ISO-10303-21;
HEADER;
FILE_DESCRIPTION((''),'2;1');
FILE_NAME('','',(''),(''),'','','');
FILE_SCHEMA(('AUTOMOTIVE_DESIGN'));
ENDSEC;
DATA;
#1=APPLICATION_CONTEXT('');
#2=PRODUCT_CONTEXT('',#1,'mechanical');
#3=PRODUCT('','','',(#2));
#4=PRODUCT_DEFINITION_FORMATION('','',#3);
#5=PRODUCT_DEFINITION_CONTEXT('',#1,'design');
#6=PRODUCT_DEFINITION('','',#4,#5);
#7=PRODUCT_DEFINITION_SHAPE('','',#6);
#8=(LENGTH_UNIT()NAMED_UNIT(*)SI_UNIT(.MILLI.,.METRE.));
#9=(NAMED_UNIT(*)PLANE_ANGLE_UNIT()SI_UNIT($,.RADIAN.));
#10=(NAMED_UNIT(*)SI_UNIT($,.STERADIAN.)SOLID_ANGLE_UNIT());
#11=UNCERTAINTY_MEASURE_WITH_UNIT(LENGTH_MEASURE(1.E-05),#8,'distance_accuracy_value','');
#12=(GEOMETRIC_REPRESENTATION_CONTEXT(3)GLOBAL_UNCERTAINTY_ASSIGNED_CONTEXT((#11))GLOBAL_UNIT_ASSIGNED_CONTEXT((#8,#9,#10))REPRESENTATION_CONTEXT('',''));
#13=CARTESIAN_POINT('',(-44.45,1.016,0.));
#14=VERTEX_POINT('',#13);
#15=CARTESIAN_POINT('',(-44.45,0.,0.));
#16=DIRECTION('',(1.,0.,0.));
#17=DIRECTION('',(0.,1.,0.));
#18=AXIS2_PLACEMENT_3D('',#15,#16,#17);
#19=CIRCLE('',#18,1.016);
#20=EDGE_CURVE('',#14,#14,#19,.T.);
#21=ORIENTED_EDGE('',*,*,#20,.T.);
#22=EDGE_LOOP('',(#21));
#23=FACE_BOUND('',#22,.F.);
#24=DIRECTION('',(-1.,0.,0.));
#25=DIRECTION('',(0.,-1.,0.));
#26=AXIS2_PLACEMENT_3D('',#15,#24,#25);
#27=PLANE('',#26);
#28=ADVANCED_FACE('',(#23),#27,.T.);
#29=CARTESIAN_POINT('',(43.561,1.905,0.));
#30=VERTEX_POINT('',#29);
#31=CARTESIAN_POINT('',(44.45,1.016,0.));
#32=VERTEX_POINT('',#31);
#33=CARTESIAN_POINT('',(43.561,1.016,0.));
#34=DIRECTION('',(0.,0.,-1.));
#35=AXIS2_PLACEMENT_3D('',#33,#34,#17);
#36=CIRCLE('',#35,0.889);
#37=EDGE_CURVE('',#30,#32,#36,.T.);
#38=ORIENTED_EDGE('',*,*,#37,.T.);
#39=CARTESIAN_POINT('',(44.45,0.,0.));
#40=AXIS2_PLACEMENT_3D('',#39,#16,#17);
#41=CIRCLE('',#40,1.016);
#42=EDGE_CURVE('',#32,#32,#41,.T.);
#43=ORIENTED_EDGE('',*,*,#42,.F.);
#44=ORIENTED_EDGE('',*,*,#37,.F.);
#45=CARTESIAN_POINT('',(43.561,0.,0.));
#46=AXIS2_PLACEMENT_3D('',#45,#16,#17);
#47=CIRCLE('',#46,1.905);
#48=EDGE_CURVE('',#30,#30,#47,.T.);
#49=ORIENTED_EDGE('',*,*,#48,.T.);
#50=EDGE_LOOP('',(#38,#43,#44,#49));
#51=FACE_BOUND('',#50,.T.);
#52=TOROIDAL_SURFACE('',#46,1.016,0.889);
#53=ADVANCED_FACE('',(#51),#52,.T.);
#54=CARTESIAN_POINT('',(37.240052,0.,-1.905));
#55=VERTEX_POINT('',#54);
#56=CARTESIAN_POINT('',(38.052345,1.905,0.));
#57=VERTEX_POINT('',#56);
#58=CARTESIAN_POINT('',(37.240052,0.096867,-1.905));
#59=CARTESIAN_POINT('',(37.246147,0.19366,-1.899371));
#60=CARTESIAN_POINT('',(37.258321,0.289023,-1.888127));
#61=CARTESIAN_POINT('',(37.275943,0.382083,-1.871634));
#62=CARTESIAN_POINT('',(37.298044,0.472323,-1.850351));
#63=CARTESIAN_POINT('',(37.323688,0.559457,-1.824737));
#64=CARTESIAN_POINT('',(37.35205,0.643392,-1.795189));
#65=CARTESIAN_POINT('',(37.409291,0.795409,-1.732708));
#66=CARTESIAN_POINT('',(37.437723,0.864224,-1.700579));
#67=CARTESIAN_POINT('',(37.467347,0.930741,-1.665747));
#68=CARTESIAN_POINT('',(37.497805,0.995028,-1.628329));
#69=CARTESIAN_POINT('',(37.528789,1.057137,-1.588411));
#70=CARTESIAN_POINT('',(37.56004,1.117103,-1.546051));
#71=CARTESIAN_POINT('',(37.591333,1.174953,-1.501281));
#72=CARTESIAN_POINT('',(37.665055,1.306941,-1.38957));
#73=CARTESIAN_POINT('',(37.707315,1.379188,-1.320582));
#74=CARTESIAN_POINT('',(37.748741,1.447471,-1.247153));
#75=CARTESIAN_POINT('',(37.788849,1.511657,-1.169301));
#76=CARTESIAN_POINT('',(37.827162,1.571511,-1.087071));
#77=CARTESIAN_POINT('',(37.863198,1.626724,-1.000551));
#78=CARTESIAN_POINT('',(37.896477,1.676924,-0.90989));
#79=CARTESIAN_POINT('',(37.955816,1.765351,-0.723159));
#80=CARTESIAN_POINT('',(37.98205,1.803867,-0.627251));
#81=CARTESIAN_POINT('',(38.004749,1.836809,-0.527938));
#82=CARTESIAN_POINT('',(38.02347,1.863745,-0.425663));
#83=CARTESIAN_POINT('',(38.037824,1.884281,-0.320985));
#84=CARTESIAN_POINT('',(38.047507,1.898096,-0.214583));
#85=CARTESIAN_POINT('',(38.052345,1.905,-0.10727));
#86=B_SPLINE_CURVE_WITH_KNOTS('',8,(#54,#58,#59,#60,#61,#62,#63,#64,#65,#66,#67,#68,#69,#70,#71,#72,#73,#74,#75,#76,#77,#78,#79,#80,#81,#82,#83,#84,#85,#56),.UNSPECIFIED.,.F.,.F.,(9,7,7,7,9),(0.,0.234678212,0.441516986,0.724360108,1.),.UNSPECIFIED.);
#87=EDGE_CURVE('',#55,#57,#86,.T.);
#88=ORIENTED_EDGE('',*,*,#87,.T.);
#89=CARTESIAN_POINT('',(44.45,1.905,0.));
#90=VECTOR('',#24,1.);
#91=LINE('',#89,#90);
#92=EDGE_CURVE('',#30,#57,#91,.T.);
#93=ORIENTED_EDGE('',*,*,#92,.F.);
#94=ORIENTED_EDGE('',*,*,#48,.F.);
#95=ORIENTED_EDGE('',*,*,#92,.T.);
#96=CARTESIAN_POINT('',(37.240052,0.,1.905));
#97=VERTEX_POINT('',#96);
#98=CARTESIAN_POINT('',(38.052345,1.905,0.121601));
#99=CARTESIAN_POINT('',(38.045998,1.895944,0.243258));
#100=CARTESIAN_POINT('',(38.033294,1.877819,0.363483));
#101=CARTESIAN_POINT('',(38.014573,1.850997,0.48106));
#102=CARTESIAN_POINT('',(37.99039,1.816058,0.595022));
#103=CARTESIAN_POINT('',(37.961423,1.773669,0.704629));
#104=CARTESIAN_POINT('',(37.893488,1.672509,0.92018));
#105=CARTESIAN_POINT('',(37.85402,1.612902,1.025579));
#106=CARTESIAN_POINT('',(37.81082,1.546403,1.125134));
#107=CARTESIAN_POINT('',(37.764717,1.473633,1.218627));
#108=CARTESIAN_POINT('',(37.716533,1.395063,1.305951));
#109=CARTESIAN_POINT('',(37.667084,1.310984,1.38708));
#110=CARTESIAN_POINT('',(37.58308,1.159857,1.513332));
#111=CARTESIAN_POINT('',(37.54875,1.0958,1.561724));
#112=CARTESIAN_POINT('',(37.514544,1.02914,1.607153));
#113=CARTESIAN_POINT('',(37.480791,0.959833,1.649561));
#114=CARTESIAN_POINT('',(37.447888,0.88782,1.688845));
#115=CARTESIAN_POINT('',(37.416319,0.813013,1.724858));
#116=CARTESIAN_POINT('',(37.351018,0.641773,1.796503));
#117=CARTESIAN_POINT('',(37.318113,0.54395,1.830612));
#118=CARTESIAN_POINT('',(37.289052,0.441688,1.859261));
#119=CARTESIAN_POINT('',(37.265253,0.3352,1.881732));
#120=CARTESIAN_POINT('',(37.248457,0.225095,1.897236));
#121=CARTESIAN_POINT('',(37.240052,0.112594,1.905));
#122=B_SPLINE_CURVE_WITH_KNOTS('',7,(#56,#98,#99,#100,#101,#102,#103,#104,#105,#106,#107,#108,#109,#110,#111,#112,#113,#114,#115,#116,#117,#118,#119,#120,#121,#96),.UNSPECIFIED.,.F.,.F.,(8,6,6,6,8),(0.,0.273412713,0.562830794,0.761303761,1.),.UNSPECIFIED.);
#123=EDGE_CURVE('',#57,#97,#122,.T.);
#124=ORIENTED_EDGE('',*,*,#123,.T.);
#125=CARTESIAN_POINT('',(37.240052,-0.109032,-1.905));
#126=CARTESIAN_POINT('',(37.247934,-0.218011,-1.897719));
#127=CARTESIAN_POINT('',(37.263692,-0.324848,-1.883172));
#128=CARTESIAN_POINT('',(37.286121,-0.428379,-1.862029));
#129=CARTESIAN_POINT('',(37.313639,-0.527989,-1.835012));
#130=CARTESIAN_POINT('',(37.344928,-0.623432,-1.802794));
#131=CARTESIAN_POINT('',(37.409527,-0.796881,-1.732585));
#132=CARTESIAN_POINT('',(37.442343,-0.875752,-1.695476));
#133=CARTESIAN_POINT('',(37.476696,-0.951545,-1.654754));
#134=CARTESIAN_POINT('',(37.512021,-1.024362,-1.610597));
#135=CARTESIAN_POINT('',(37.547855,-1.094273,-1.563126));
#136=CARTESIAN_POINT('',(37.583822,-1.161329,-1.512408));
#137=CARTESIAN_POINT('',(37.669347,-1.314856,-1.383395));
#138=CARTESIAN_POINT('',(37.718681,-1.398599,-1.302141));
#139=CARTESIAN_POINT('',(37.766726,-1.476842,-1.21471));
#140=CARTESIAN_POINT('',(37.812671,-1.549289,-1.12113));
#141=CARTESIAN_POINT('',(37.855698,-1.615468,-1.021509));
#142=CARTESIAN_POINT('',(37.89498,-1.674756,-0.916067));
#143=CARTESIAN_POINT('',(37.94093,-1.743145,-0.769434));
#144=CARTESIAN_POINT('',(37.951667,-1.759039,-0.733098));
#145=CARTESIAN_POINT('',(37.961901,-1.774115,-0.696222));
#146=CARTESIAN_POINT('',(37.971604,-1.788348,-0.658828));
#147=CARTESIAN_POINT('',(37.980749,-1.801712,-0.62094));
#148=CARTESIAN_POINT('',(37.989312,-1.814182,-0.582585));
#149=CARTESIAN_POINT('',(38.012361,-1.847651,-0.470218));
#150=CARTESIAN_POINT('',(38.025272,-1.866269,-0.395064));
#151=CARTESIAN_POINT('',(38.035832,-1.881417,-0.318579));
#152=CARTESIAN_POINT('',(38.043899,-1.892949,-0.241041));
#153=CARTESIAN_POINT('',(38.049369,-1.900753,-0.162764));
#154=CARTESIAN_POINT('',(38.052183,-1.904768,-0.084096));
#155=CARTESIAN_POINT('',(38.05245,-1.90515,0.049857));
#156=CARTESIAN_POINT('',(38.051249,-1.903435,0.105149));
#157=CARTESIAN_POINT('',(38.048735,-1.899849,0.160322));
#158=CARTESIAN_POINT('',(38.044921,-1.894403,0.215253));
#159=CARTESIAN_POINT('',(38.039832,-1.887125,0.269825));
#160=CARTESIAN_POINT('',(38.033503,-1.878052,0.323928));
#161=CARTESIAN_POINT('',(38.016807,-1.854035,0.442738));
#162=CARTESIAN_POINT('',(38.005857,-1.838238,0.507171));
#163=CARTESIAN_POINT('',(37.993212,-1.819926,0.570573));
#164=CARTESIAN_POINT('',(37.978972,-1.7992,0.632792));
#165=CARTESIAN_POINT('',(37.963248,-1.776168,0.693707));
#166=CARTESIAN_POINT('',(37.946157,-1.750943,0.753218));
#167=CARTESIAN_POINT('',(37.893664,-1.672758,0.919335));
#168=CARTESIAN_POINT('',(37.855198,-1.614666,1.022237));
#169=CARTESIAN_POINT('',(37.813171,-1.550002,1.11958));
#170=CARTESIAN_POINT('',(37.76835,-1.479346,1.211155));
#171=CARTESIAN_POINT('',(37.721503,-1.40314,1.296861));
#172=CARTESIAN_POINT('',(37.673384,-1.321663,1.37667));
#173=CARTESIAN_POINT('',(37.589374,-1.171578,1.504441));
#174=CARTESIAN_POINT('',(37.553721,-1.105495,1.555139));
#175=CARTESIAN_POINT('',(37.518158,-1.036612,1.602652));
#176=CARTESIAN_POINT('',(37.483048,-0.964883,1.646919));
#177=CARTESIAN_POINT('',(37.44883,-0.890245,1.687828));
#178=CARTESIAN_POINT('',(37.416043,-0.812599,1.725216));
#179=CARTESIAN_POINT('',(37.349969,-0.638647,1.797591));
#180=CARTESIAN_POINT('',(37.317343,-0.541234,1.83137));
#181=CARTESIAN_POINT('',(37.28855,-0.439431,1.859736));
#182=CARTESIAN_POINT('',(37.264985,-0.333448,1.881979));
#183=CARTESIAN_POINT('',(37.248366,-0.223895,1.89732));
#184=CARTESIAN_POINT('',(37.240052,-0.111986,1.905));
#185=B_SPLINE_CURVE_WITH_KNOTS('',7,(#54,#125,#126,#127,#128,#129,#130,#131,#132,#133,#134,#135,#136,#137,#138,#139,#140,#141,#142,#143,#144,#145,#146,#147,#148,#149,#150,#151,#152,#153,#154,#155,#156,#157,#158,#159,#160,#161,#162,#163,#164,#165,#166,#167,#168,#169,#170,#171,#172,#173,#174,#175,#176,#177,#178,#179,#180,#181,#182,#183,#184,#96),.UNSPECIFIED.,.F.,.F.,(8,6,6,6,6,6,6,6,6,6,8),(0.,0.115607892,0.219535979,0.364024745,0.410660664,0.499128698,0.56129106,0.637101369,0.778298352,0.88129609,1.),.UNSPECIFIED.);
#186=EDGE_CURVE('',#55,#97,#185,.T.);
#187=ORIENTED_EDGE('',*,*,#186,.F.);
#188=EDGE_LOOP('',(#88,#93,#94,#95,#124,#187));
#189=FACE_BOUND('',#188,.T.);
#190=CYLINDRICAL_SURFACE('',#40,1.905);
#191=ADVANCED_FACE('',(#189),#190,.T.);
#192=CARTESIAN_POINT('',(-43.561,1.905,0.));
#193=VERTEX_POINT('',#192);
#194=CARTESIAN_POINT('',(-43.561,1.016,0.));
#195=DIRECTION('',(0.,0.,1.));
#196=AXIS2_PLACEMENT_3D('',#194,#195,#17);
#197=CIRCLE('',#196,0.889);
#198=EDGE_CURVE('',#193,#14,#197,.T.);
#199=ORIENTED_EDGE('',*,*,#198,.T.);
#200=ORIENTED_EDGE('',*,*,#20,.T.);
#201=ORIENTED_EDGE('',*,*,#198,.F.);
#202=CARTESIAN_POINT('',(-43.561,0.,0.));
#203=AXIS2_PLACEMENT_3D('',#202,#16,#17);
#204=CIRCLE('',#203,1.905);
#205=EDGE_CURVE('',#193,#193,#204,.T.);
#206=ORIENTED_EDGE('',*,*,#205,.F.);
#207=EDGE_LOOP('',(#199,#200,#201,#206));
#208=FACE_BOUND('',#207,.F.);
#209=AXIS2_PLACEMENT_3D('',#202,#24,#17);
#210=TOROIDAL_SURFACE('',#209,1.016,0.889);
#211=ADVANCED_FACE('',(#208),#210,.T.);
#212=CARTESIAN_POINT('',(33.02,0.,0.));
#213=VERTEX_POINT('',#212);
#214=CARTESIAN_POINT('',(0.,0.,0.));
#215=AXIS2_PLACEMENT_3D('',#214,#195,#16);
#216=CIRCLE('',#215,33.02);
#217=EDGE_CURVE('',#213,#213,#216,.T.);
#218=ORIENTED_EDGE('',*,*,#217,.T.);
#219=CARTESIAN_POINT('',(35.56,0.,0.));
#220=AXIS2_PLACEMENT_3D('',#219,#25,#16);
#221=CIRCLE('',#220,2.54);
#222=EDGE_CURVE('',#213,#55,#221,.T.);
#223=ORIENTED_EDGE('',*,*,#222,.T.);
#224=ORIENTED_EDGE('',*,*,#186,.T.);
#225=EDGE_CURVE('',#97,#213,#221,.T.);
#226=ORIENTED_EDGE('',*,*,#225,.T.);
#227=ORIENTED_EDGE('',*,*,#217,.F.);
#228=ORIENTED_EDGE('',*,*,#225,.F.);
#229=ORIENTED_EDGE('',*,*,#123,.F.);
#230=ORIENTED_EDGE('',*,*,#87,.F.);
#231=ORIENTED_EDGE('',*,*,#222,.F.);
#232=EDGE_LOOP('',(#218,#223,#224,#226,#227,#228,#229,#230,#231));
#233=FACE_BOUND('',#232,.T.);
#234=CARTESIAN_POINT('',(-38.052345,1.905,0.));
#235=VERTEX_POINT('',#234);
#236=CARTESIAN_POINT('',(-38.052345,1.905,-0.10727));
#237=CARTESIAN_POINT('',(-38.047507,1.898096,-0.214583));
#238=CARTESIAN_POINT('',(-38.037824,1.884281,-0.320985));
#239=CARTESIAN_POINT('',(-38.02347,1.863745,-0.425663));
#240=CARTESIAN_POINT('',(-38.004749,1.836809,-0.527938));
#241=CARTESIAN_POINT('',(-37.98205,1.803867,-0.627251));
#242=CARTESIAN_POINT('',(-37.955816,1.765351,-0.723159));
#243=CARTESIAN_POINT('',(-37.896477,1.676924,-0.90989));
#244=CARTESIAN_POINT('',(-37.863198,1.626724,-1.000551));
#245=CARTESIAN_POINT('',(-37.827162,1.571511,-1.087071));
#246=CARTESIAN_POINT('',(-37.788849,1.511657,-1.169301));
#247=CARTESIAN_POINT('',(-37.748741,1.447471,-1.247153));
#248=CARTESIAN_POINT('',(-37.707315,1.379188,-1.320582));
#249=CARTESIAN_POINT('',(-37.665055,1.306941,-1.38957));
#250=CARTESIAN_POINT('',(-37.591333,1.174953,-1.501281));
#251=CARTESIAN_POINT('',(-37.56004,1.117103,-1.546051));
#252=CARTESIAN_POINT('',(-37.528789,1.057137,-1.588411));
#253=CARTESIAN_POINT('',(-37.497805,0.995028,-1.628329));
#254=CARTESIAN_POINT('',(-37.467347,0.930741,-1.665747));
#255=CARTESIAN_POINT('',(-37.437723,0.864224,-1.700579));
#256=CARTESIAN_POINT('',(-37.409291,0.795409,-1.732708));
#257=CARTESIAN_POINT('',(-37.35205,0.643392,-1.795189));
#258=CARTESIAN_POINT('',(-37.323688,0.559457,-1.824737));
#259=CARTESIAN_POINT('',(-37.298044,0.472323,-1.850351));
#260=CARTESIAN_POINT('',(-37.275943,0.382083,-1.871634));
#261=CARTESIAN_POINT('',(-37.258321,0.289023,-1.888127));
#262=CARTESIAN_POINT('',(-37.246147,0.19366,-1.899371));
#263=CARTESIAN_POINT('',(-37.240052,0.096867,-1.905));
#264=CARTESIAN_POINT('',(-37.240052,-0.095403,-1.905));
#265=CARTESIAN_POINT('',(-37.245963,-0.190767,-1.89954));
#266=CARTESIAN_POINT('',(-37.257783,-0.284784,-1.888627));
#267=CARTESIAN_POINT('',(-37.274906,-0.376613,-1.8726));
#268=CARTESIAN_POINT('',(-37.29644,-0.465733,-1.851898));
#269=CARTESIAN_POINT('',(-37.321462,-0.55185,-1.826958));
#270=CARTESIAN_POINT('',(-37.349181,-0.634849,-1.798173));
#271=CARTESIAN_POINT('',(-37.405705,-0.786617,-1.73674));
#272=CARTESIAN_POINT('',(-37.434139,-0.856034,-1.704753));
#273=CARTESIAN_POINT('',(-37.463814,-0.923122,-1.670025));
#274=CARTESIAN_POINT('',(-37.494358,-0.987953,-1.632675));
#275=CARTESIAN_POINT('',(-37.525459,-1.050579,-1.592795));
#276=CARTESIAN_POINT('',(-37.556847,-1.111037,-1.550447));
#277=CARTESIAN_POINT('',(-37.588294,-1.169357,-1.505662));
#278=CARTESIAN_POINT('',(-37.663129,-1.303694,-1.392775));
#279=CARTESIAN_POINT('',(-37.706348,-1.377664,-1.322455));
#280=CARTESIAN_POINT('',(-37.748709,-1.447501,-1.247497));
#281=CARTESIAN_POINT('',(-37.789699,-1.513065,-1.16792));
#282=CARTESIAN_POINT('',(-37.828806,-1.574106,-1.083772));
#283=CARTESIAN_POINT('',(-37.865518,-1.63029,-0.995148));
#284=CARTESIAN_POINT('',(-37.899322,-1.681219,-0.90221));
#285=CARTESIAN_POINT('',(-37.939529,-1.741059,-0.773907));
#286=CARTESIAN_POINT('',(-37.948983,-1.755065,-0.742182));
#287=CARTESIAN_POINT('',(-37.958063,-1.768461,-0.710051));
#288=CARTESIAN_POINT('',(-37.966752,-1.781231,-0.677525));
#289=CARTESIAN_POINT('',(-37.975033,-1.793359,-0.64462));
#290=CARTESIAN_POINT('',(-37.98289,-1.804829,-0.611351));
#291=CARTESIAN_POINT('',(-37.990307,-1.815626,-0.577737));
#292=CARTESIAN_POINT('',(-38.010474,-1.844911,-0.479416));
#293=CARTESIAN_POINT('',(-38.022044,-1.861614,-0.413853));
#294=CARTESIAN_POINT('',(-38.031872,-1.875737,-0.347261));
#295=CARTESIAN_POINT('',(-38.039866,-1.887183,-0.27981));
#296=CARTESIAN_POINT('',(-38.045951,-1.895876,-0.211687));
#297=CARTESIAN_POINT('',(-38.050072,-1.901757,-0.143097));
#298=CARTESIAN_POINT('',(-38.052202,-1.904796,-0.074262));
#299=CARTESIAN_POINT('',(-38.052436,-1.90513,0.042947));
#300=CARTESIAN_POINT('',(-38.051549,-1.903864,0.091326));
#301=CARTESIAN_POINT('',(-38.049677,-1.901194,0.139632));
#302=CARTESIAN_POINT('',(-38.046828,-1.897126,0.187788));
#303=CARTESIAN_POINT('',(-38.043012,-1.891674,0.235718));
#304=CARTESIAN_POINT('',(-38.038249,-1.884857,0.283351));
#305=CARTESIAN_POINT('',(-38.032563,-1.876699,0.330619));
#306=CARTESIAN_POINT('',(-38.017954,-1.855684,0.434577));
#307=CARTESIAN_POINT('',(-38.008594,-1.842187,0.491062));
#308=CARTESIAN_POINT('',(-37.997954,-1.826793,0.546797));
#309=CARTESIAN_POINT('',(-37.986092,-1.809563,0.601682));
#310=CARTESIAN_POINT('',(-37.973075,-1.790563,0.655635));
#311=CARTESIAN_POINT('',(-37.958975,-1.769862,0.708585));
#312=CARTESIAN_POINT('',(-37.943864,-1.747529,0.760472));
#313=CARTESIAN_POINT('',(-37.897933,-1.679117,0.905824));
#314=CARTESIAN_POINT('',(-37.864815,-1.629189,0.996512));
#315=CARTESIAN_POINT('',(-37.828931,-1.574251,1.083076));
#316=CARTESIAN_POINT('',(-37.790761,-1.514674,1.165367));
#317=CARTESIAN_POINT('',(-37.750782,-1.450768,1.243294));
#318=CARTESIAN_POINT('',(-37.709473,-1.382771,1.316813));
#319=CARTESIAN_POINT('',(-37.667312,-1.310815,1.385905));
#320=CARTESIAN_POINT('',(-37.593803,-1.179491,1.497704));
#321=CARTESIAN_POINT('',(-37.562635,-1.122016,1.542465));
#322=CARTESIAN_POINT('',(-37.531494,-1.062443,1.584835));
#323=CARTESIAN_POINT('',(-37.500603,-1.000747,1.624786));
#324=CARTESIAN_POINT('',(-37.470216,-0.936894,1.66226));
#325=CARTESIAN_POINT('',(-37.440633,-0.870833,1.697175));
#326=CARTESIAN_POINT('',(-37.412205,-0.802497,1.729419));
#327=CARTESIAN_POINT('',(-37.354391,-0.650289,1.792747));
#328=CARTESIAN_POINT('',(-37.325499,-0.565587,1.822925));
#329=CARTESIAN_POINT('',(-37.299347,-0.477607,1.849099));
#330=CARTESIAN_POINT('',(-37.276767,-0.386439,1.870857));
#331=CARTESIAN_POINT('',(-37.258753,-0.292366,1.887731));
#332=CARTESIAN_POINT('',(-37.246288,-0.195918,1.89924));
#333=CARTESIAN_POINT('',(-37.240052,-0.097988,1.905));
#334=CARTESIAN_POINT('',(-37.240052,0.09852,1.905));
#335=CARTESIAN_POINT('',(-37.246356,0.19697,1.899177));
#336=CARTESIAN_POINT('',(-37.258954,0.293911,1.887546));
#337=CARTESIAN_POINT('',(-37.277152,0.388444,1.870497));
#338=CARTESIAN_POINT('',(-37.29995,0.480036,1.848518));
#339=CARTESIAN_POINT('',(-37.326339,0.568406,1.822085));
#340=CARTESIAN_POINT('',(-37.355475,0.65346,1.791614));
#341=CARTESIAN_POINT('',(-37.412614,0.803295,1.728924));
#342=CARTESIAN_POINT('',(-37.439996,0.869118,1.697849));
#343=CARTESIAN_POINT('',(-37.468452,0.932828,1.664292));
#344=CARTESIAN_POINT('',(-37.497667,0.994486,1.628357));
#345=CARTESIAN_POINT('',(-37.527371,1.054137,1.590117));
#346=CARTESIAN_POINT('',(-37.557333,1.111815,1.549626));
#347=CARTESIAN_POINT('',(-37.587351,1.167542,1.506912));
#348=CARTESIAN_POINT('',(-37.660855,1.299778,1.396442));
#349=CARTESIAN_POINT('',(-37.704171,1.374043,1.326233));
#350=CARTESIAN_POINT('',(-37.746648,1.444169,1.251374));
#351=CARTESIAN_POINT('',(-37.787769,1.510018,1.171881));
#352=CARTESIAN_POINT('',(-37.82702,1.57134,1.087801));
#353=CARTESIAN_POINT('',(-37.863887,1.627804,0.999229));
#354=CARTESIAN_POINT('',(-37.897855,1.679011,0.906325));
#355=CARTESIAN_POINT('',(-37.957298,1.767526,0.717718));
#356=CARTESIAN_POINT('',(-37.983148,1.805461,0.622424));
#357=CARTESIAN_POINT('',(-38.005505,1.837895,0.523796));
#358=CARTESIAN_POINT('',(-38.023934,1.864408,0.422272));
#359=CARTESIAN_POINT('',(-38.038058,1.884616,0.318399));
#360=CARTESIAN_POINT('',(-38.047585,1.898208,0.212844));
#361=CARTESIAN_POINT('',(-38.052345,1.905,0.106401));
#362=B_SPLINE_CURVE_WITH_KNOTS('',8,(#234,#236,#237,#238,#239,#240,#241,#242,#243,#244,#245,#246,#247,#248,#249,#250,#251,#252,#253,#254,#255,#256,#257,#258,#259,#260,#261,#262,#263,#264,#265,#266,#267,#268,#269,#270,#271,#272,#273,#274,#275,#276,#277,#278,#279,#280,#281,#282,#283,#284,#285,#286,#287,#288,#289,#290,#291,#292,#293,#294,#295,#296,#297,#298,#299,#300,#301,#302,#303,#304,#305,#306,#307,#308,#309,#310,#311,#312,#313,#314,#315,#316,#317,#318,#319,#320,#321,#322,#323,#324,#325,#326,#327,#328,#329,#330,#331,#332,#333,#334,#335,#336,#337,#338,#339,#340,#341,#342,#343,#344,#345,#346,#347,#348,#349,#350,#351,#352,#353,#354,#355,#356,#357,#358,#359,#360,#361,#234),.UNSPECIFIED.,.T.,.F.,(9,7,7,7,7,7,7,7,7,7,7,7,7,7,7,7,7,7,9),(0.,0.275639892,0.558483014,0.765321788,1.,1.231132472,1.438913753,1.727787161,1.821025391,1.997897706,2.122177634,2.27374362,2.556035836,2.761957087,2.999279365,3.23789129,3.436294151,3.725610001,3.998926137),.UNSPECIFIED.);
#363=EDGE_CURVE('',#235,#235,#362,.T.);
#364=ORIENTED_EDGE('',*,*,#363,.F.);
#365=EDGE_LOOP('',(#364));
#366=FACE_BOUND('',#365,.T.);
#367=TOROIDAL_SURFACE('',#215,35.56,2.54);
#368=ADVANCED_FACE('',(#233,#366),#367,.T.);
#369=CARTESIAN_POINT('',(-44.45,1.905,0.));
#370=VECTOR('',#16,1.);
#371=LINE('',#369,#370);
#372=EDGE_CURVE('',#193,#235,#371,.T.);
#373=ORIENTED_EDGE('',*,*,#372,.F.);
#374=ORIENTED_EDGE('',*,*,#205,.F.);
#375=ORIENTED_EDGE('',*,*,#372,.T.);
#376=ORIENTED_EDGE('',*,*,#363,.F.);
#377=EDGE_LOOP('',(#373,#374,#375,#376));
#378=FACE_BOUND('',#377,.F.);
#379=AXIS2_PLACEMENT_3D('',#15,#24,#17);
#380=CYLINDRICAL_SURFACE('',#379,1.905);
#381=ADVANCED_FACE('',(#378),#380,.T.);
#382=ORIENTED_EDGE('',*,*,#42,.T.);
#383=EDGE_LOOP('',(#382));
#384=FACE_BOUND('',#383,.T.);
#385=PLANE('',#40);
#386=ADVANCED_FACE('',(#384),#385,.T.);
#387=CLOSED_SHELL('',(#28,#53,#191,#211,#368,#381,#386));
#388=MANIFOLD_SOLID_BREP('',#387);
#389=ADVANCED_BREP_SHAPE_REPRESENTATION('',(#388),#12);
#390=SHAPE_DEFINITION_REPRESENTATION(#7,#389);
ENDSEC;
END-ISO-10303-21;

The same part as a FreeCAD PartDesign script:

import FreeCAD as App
import Part
import Sketcher
from FreeCAD import Vector
Q = App.Units.Quantity


def edges_at(feature, points):
    """Names of the edges that pass closest to the given points."""
    edges = feature.Shape.Edges
    near = lambda p: min(range(len(edges)), key=lambda i: edges[i].distToShape(Part.Vertex(*p))[0])
    return sorted({f"Edge{near(p) + 1}" for p in points})

doc = App.newDocument("Part")
body = doc.addObject("PartDesign::Body", "Body")

# Sketch on YZ plane
sketch1 = body.newObject("Sketcher::SketchObject", "Sketch")
sketch1.AttachmentSupport = (doc.getObject("YZ_Plane"), [""])
sketch1.MapMode = "FlatFace"
sketch1.addGeometry(Part.Circle(Vector(-35.6, 0, 0), Vector(0, 0, 1), 2.5), False)
sketch1.addConstraint([
    Sketcher.Constraint("PointOnObject", 0, 3, -1),
    Sketcher.Constraint("Diameter", 0, Q("0.2 in")),
    Sketcher.Constraint("DistanceX", 0, 3, -1, 1, Q("1.4 in")),
])

# Sketch on XY plane
sketch2 = body.newObject("Sketcher::SketchObject", "Sketch001")
sketch2.AttachmentSupport = (doc.getObject("XY_Plane"), [""])
sketch2.MapMode = "FlatFace"
sketch2.addGeometry(Part.Circle(Vector(0, 0, 0), Vector(0, 0, 1), 36), False)
sketch2.addConstraint([
    Sketcher.Constraint("Coincident", 0, 3, -1, 1),
    Sketcher.Constraint("Diameter", 0, Q("2.8 in")),
])
doc.recompute()

additivepipe = body.newObject("PartDesign::AdditivePipe", "AdditivePipe")
additivepipe.Profile = sketch1
additivepipe.Spine = (sketch2, ["Edge1"])

# Sketch on YZ plane
sketch3 = body.newObject("Sketcher::SketchObject", "Sketch002")
sketch3.AttachmentSupport = (doc.getObject("YZ_Plane"), [""])
sketch3.MapMode = "FlatFace"
sketch3.AttachmentOffset = App.Placement(Vector(0, 0, 1.75 * 25.4), App.Rotation())
sketch3.addGeometry(Part.Circle(Vector(0, 0, 0), Vector(0, 0, 1), 1.9), False)
sketch3.addConstraint([
    Sketcher.Constraint("Coincident", 0, 3, -1, 1),
    Sketcher.Constraint("Diameter", 0, Q("0.15 in")),
])
pad1 = body.newObject("PartDesign::Pad", "Pad")
pad1.Profile = sketch3
pad1.Type = "UpToLast"
pad1.Reversed = True
doc.recompute()

fillet = body.newObject("PartDesign::Fillet", "Fillet")
fillet.Base = (pad1, edges_at(pad1, [(44.45, -1.905, 0)]))
fillet.Radius = Q("0.035 in")
body2 = doc.addObject("PartDesign::Body", "Body001")
doc.recompute()

body2.BaseFeature = body
doc.recompute()

mirroring = doc.addObject("Part::Mirroring", "Mirroring")
mirroring.Source = body
mirroring.Base = Vector(0, 0, 0)
mirroring.Normal = Vector(1, 0, 0)
body3 = doc.addObject("PartDesign::Body", "Body002")
body3.BaseFeature = mirroring
boolean = body2.newObject("PartDesign::Boolean", "Boolean")
boolean.Type = "Fuse"
boolean.addObjects([body3])
doc.recompute()
mirroring.Visibility = False

doc.recompute()
